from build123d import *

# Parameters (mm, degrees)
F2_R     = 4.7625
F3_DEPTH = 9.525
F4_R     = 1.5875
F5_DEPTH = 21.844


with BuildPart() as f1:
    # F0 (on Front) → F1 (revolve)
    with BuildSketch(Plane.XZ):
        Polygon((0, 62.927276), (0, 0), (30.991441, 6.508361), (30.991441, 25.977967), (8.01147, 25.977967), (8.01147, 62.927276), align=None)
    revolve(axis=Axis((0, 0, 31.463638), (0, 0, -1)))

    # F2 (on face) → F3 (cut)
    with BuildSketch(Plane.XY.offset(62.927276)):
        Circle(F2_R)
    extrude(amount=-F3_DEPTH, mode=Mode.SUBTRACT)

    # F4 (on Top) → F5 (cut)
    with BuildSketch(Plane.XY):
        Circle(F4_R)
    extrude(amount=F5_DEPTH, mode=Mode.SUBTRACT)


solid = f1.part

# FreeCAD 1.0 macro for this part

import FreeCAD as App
import Part
import Sketcher
Q = App.Units.Quantity


def add_polygon(sketch, points):
    """Adds a closed chain of lines whose ends are joined by coincident constraints."""
    first, n = sketch.GeometryCount, len(points)
    for a, b in zip(points, points[1:] + points[:1]):
        sketch.addGeometry(Part.LineSegment(App.Vector(*a, 0), App.Vector(*b, 0)), False)
    for i in range(n):
        sketch.addConstraint(Sketcher.Constraint("Coincident", first + i, 2, first + (i + 1) % n, 1))

doc = App.newDocument("Part")
params = doc.addObject("Spreadsheet::Sheet", "Params")
for row, (alias, value) in enumerate([
    ("revolution_angle", "360 deg"),
    ("sketch2_diameter", "0.375 in"),
    ("pocket1_length", "0.375 in"),
    ("sketch3_diameter", "0.125 in"),
    ("pocket2_length", "0.86 in"),
], start=1):
    params.set(f"A{row}", alias)
    params.set(f"B{row}", "=" + value)
    params.setAlias(f"B{row}", alias)

body = doc.addObject("PartDesign::Body", "Body")

# Sketch on XZ plane
sketch1 = body.newObject("Sketcher::SketchObject", "Sketch")
sketch1.AttachmentSupport = (doc.getObject("XZ_Plane"), [""])
sketch1.MapMode = "FlatFace"
add_polygon(sketch1, [(0, 63), (0, 0), (31, 7), (31, 26), (8, 26), (8, 63)])  # lines 0-5
sketch1.addConstraint([
    Sketcher.Constraint("Vertical", 0),
    Sketcher.Constraint("Vertical", 2),
    Sketcher.Constraint("Horizontal", 3),
    Sketcher.Constraint("Vertical", 4),
    Sketcher.Constraint("Horizontal", 5),
    Sketcher.Constraint("Coincident", 0, 2, -1, 1),
    Sketcher.Constraint("DistanceX", 3, 2, 3, 1, Q("22.979971 mm")),
    Sketcher.Constraint("DistanceX", 5, 2, 5, 1, Q("8.01147 mm")),
    Sketcher.Constraint("DistanceY", 4, 1, 4, 2, Q("36.949309 mm")),
    Sketcher.Constraint("DistanceY", 0, 2, 0, 1, Q("62.927276 mm")),
    Sketcher.Constraint("DistanceY", 2, 1, 2, 2, Q("19.469606 mm")),
])
revolution = body.newObject("PartDesign::Revolution", "Revolution")
revolution.Profile = sketch1
revolution.ReferenceAxis = (sketch1, ["V_Axis"])
revolution.setExpression("Angle", "Params.revolution_angle")

# Sketch on XY plane
sketch2 = body.newObject("Sketcher::SketchObject", "Sketch001")
sketch2.AttachmentSupport = (doc.getObject("XY_Plane"), [""])
sketch2.MapMode = "FlatFace"
sketch2.AttachmentOffset = App.Placement(App.Vector(0, 0, 62.927276), App.Rotation())
sketch2.addGeometry(Part.Circle(App.Vector(0, 0, 0), App.Vector(0, 0, 1), 4.8), False)
sketch2.addConstraint([
    Sketcher.Constraint("Coincident", 0, 3, -1, 1),
    Sketcher.Constraint("Diameter", 0, Q("0.375 in")),
])
sketch2.setExpression("Constraints[1]", "Params.sketch2_diameter")
pocket1 = body.newObject("PartDesign::Pocket", "Pocket")
pocket1.Profile = sketch2
pocket1.setExpression("Length", "Params.pocket1_length")

# Sketch on XY plane
sketch3 = body.newObject("Sketcher::SketchObject", "Sketch002")
sketch3.AttachmentSupport = (doc.getObject("XY_Plane"), [""])
sketch3.MapMode = "FlatFace"
sketch3.addGeometry(Part.Circle(App.Vector(0, 0, 0), App.Vector(0, 0, 1), 1.6), False)
sketch3.addConstraint([
    Sketcher.Constraint("Coincident", 0, 3, -1, 1),
    Sketcher.Constraint("Diameter", 0, Q("0.125 in")),
])
sketch3.setExpression("Constraints[1]", "Params.sketch3_diameter")
pocket2 = body.newObject("PartDesign::Pocket", "Pocket001")
pocket2.Profile = sketch3
pocket2.setExpression("Length", "Params.pocket2_length")
pocket2.Reversed = True

doc.recompute()
